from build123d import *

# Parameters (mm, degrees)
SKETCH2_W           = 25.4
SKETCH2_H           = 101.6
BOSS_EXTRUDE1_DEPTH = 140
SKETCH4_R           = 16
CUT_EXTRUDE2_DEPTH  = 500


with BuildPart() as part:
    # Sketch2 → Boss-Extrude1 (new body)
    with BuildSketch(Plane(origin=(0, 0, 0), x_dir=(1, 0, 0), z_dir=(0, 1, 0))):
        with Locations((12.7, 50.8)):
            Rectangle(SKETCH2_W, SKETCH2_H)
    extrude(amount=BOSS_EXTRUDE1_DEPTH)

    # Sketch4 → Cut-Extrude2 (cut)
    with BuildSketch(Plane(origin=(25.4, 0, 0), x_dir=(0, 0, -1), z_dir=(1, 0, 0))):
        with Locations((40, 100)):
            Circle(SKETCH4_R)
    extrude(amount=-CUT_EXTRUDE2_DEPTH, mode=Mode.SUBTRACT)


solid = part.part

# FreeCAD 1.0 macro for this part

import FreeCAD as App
import Part
import Sketcher

V = App.Vector

doc = App.newDocument("Part")
params = doc.addObject("Spreadsheet::Sheet", "Params")
for row, (alias, value) in enumerate([
    ("sketch1_width", "25.4 mm"),
    ("sketch1_height", "101.6 mm"),
    ("pad1_length", "140 mm"),
    ("sketch2_diameter", "32 mm"),
    ("pocket1_length", "500 mm"),
], start=1):
    params.set(f"A{row}", alias)
    params.set(f"B{row}", "=" + value)
    params.setAlias(f"B{row}", alias)

body = doc.addObject("PartDesign::Body", "Body")

# Sketch on XZ plane
sketch1 = body.newObject("Sketcher::SketchObject", "Sketch")
sketch1.AttachmentSupport = (doc.getObject("XZ_Plane"), [""])
sketch1.MapMode = "FlatFace"
sketch1.addGeometry([
    Part.LineSegment(V(0, -102, 0), V(0, 0, 0)),
    Part.LineSegment(V(0, 0, 0), V(25, 0, 0)),
    Part.LineSegment(V(25, 0, 0), V(25, -102, 0)),
    Part.LineSegment(V(25, -102, 0), V(0, -102, 0)),
], False)
sketch1.addConstraint([
    Sketcher.Constraint("Coincident", 0, 2, 1, 1),
    Sketcher.Constraint("Coincident", 1, 2, 2, 1),
    Sketcher.Constraint("Coincident", 2, 2, 3, 1),
    Sketcher.Constraint("Coincident", 3, 2, 0, 1),
    Sketcher.Constraint("Vertical", 0),
    Sketcher.Constraint("Horizontal", 1),
    Sketcher.Constraint("Vertical", 2),
    Sketcher.Constraint("Horizontal", 3),
    Sketcher.Constraint("Coincident", 0, 2, -1, 1),
    Sketcher.Constraint("DistanceX", 1, 1, 1, 2, 25.4),
    Sketcher.Constraint("DistanceY", 0, 1, 0, 2, 101.6),
])
sketch1.setExpression("Constraints[9]", "Params.sketch1_width")
sketch1.setExpression("Constraints[10]", "Params.sketch1_height")
pad1 = body.newObject("PartDesign::Pad", "Pad")
pad1.Profile = sketch1
pad1.setExpression("Length", "Params.pad1_length")
pad1.Reversed = True

# Sketch on YZ plane
sketch2 = body.newObject("Sketcher::SketchObject", "Sketch001")
sketch2.AttachmentSupport = (doc.getObject("YZ_Plane"), [""])
sketch2.MapMode = "FlatFace"
sketch2.AttachmentOffset = App.Placement(V(0, 0, 25.4), App.Rotation())
sketch2.addGeometry(Part.Circle(V(100, -40, 0), V(0, 0, 1), 16), False)
sketch2.addConstraint([
    Sketcher.Constraint("Diameter", 0, 32.0),
    Sketcher.Constraint("DistanceX", -1, 1, 0, 3, 100.0),
    Sketcher.Constraint("DistanceY", 0, 3, -1, 1, 40.0),
])
sketch2.setExpression("Constraints[0]", "Params.sketch2_diameter")
pocket1 = body.newObject("PartDesign::Pocket", "Pocket")
pocket1.Profile = sketch2
pocket1.setExpression("Length", "Params.pocket1_length")

doc.recompute()
